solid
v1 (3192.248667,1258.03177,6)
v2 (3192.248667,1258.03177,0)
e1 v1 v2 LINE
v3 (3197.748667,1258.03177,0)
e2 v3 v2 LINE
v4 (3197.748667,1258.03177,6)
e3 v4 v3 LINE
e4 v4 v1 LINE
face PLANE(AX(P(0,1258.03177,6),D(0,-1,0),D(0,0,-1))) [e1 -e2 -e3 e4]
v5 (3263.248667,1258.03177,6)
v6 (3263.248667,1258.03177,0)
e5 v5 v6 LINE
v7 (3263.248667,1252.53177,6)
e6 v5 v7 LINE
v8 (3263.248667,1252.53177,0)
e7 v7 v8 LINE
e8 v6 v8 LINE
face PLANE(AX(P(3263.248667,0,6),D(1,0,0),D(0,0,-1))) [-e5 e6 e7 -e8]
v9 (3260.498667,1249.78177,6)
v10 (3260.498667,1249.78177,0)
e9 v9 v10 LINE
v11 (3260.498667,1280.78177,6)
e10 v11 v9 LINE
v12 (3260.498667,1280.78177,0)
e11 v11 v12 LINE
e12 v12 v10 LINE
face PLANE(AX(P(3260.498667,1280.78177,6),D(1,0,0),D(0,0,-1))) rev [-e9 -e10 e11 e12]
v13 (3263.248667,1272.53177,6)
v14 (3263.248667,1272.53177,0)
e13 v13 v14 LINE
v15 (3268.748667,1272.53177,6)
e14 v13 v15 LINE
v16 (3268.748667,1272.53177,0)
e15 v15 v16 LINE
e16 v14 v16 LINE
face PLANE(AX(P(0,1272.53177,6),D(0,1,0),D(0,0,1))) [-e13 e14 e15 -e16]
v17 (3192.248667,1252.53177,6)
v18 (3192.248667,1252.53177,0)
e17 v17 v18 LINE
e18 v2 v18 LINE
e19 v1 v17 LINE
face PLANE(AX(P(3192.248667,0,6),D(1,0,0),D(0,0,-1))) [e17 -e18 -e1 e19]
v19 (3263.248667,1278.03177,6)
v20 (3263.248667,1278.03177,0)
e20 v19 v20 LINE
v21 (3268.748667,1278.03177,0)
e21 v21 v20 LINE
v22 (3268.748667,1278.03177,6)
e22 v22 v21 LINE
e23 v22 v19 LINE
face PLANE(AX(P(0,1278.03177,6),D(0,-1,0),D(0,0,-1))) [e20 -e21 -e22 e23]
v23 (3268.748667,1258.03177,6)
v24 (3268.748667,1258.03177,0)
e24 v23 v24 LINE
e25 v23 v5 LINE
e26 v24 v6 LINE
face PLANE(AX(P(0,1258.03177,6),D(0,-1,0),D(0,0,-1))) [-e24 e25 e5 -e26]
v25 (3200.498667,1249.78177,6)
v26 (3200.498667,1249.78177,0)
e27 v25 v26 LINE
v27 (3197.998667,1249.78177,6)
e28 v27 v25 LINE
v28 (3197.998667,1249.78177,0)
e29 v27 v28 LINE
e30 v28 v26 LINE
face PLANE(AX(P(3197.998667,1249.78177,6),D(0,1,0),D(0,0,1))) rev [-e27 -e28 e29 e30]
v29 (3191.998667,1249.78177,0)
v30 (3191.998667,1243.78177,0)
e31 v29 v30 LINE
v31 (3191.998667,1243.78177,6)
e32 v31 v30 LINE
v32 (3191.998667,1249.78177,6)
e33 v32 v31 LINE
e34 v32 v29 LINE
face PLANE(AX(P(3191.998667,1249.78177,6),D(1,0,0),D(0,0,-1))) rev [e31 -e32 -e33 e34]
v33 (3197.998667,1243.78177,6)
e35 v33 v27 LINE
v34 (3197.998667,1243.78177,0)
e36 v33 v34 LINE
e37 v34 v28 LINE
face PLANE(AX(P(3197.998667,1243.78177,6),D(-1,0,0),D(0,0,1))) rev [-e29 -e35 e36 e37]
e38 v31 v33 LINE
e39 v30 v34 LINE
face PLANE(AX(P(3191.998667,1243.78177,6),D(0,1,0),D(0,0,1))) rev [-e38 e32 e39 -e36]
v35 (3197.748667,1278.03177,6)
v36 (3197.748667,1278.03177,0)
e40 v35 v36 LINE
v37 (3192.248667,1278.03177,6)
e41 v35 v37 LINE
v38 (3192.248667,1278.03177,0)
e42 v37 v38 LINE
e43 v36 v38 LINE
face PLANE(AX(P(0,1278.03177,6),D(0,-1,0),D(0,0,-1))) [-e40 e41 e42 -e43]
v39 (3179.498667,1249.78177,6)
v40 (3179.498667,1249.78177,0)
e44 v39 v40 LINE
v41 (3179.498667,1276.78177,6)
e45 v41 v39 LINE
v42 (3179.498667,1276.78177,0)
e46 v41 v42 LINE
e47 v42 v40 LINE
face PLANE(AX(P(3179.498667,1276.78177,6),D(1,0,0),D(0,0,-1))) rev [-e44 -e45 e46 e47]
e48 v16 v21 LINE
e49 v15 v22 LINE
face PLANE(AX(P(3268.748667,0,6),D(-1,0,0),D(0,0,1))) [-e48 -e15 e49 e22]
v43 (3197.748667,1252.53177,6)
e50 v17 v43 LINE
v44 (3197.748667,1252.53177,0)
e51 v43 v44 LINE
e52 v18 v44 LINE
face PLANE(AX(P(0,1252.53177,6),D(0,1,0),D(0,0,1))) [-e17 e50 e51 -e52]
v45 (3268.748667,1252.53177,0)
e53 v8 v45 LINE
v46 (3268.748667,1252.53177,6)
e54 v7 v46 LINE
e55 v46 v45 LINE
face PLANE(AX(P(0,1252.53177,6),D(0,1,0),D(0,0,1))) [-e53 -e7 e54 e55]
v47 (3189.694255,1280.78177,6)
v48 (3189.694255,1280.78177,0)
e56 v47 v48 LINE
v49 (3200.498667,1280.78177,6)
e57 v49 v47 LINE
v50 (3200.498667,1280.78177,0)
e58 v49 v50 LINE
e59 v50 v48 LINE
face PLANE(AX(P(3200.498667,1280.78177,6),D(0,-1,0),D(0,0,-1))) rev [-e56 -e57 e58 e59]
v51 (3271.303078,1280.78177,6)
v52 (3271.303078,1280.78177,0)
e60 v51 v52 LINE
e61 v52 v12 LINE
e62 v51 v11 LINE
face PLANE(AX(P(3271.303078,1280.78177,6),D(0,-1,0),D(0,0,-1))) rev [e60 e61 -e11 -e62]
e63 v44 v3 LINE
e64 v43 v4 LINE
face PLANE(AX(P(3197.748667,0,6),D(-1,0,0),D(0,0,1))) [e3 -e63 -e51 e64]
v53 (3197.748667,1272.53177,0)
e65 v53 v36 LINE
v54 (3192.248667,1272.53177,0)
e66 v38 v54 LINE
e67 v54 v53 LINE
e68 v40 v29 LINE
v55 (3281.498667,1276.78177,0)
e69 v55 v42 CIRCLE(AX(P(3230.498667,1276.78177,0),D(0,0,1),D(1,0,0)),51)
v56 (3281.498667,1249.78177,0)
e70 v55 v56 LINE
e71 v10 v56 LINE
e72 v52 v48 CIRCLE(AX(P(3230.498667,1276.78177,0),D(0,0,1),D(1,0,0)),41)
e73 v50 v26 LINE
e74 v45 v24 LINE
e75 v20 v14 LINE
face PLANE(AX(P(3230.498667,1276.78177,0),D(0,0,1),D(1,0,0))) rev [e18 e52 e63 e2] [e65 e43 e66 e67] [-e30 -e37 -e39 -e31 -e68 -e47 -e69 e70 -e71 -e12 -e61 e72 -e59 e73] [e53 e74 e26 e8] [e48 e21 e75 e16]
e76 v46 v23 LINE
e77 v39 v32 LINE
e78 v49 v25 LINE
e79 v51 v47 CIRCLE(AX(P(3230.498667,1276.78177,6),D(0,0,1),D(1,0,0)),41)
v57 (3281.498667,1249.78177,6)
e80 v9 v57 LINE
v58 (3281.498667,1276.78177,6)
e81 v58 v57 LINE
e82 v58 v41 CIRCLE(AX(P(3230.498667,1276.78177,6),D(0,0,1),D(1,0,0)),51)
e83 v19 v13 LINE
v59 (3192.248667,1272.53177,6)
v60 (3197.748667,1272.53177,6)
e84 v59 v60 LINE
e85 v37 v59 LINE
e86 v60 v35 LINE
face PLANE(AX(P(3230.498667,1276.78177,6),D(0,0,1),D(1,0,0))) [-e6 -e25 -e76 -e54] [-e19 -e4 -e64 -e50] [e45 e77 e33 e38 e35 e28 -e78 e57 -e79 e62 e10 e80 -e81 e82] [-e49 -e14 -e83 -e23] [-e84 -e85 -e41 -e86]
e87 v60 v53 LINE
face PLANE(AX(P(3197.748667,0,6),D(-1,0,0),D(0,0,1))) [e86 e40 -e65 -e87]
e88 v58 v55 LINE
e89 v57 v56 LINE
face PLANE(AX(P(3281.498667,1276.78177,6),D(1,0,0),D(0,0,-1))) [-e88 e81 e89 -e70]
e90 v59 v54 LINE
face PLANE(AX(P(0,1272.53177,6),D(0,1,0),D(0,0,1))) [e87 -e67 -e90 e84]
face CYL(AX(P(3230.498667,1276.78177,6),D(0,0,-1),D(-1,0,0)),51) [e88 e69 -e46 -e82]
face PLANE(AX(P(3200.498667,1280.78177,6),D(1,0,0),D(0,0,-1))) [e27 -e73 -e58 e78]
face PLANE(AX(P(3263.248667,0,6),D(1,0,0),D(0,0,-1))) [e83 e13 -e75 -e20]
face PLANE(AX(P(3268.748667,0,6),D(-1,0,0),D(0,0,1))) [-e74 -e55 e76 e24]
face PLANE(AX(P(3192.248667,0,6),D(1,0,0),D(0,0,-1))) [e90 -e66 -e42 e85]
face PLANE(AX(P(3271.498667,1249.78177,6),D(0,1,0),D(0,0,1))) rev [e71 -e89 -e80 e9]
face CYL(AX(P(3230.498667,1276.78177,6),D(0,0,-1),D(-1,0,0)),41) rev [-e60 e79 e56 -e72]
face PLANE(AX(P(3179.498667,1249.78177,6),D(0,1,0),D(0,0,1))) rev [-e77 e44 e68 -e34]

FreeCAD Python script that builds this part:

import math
import FreeCAD as App
import Part
import Sketcher

V = App.Vector
Q = App.Units.Quantity

doc = App.newDocument("Part")
body = doc.addObject("PartDesign::Body", "Body")

# Sketch on XY plane
sketch1 = body.newObject("Sketcher::SketchObject", "Sketch")
sketch1.AttachmentSupport = (doc.getObject("XY_Plane"), [""])
sketch1.MapMode = "FlatFace"
sketch1.addGeometry(Part.LineSegment(V(3179.5, 1276.8, 0), V(3179.5, 1249.8, 0)), False)
sketch1.addGeometry(Part.LineSegment(V(3179.5, 1249.8, 0), V(3192, 1249.8, 0)), False)
sketch1.addGeometry(Part.LineSegment(V(3192, 1249.8, 0), V(3192, 1243.8, 0)), False)
sketch1.addGeometry(Part.LineSegment(V(3192, 1243.8, 0), V(3198, 1243.8, 0)), False)
sketch1.addGeometry(Part.LineSegment(V(3198, 1243.8, 0), V(3198, 1249.8, 0)), False)
sketch1.addGeometry(Part.LineSegment(V(3198, 1249.8, 0), V(3200.5, 1249.8, 0)), False)
sketch1.addGeometry(Part.LineSegment(V(3200.5, 1249.8, 0), V(3200.5, 1280.8, 0)), False)
sketch1.addGeometry(Part.LineSegment(V(3200.5, 1280.8, 0), V(3189.7, 1280.8, 0)), False)
sketch1.addGeometry(Part.ArcOfCircle(Part.Circle(V(3230.5, 1276.8, 0), V(0, 0, 1), 41), math.radians(6), math.radians(174)), False)
sketch1.addGeometry(Part.LineSegment(V(3271.3, 1280.8, 0), V(3260.5, 1280.8, 0)), False)
sketch1.addGeometry(Part.LineSegment(V(3260.5, 1280.8, 0), V(3260.5, 1249.8, 0)), False)
sketch1.addGeometry(Part.LineSegment(V(3260.5, 1249.8, 0), V(3281.5, 1249.8, 0)), False)
sketch1.addGeometry(Part.LineSegment(V(3281.5, 1249.8, 0), V(3281.5, 1276.8, 0)), False)
sketch1.addGeometry(Part.ArcOfCircle(Part.Circle(V(3230.5, 1276.8, 0), V(0, 0, 1), 51), math.radians(0), math.radians(180)), False)
sketch1.addGeometry(Part.LineSegment(V(3197.7, 1252.5, 0), V(3192.2, 1252.5, 0)), False)
sketch1.addGeometry(Part.LineSegment(V(3192.2, 1252.5, 0), V(3192.2, 1258, 0)), False)
sketch1.addGeometry(Part.LineSegment(V(3192.2, 1258, 0), V(3197.7, 1258, 0)), False)
sketch1.addGeometry(Part.LineSegment(V(3197.7, 1258, 0), V(3197.7, 1252.5, 0)), False)
sketch1.addGeometry(Part.LineSegment(V(3268.7, 1252.5, 0), V(3263.2, 1252.5, 0)), False)
sketch1.addGeometry(Part.LineSegment(V(3263.2, 1252.5, 0), V(3263.2, 1258, 0)), False)
sketch1.addGeometry(Part.LineSegment(V(3263.2, 1258, 0), V(3268.7, 1258, 0)), False)
sketch1.addGeometry(Part.LineSegment(V(3268.7, 1258, 0), V(3268.7, 1252.5, 0)), False)
sketch1.addGeometry(Part.LineSegment(V(3197.7, 1272.5, 0), V(3192.2, 1272.5, 0)), False)
sketch1.addGeometry(Part.LineSegment(V(3192.2, 1272.5, 0), V(3192.2, 1278, 0)), False)
sketch1.addGeometry(Part.LineSegment(V(3192.2, 1278, 0), V(3197.7, 1278, 0)), False)
sketch1.addGeometry(Part.LineSegment(V(3197.7, 1278, 0), V(3197.7, 1272.5, 0)), False)
sketch1.addGeometry(Part.LineSegment(V(3268.7, 1272.5, 0), V(3263.2, 1272.5, 0)), False)
sketch1.addGeometry(Part.LineSegment(V(3263.2, 1272.5, 0), V(3263.2, 1278, 0)), False)
sketch1.addGeometry(Part.LineSegment(V(3263.2, 1278, 0), V(3268.7, 1278, 0)), False)
sketch1.addGeometry(Part.LineSegment(V(3268.7, 1278, 0), V(3268.7, 1272.5, 0)), False)
sketch1.addConstraint(Sketcher.Constraint("Coincident", 0, 2, 1, 1))
sketch1.addConstraint(Sketcher.Constraint("Coincident", 1, 2, 2, 1))
sketch1.addConstraint(Sketcher.Constraint("Coincident", 2, 2, 3, 1))
sketch1.addConstraint(Sketcher.Constraint("Coincident", 3, 2, 4, 1))
sketch1.addConstraint(Sketcher.Constraint("Coincident", 4, 2, 5, 1))
sketch1.addConstraint(Sketcher.Constraint("Coincident", 5, 2, 6, 1))
sketch1.addConstraint(Sketcher.Constraint("Coincident", 6, 2, 7, 1))
sketch1.addConstraint(Sketcher.Constraint("Coincident", 7, 2, 8, 2))
sketch1.addConstraint(Sketcher.Constraint("Coincident", 8, 1, 9, 1))
sketch1.addConstraint(Sketcher.Constraint("Coincident", 9, 2, 10, 1))
sketch1.addConstraint(Sketcher.Constraint("Coincident", 10, 2, 11, 1))
sketch1.addConstraint(Sketcher.Constraint("Coincident", 11, 2, 12, 1))
sketch1.addConstraint(Sketcher.Constraint("Tangent", 12, 2, 13, 1))
sketch1.addConstraint(Sketcher.Constraint("Tangent", 13, 2, 0, 1))
sketch1.addConstraint(Sketcher.Constraint("Coincident", 14, 2, 15, 1))
sketch1.addConstraint(Sketcher.Constraint("Coincident", 15, 2, 16, 1))
sketch1.addConstraint(Sketcher.Constraint("Coincident", 16, 2, 17, 1))
sketch1.addConstraint(Sketcher.Constraint("Coincident", 17, 2, 14, 1))
sketch1.addConstraint(Sketcher.Constraint("Coincident", 18, 2, 19, 1))
sketch1.addConstraint(Sketcher.Constraint("Coincident", 19, 2, 20, 1))
sketch1.addConstraint(Sketcher.Constraint("Coincident", 20, 2, 21, 1))
sketch1.addConstraint(Sketcher.Constraint("Coincident", 21, 2, 18, 1))
sketch1.addConstraint(Sketcher.Constraint("Coincident", 22, 2, 23, 1))
sketch1.addConstraint(Sketcher.Constraint("Coincident", 23, 2, 24, 1))
sketch1.addConstraint(Sketcher.Constraint("Coincident", 24, 2, 25, 1))
sketch1.addConstraint(Sketcher.Constraint("Coincident", 25, 2, 22, 1))
sketch1.addConstraint(Sketcher.Constraint("Coincident", 26, 2, 27, 1))
sketch1.addConstraint(Sketcher.Constraint("Coincident", 27, 2, 28, 1))
sketch1.addConstraint(Sketcher.Constraint("Coincident", 28, 2, 29, 1))
sketch1.addConstraint(Sketcher.Constraint("Coincident", 29, 2, 26, 1))
sketch1.addConstraint(Sketcher.Constraint("Vertical", 0))
sketch1.addConstraint(Sketcher.Constraint("Horizontal", 1))
sketch1.addConstraint(Sketcher.Constraint("Vertical", 2))
sketch1.addConstraint(Sketcher.Constraint("Horizontal", 3))
sketch1.addConstraint(Sketcher.Constraint("Vertical", 4))
sketch1.addConstraint(Sketcher.Constraint("Horizontal", 5))
sketch1.addConstraint(Sketcher.Constraint("Vertical", 6))
sketch1.addConstraint(Sketcher.Constraint("Horizontal", 7))
sketch1.addConstraint(Sketcher.Constraint("Horizontal", 9))
sketch1.addConstraint(Sketcher.Constraint("Vertical", 10))
sketch1.addConstraint(Sketcher.Constraint("Horizontal", 11))
sketch1.addConstraint(Sketcher.Constraint("Vertical", 12))
sketch1.addConstraint(Sketcher.Constraint("Horizontal", 14))
sketch1.addConstraint(Sketcher.Constraint("Vertical", 15))
sketch1.addConstraint(Sketcher.Constraint("Horizontal", 16))
sketch1.addConstraint(Sketcher.Constraint("Vertical", 17))
sketch1.addConstraint(Sketcher.Constraint("Horizontal", 18))
sketch1.addConstraint(Sketcher.Constraint("Vertical", 19))
sketch1.addConstraint(Sketcher.Constraint("Horizontal", 20))
sketch1.addConstraint(Sketcher.Constraint("Vertical", 21))
sketch1.addConstraint(Sketcher.Constraint("Horizontal", 22))
sketch1.addConstraint(Sketcher.Constraint("Vertical", 23))
sketch1.addConstraint(Sketcher.Constraint("Horizontal", 24))
sketch1.addConstraint(Sketcher.Constraint("Vertical", 25))
sketch1.addConstraint(Sketcher.Constraint("Horizontal", 26))
sketch1.addConstraint(Sketcher.Constraint("Vertical", 27))
sketch1.addConstraint(Sketcher.Constraint("Horizontal", 28))
sketch1.addConstraint(Sketcher.Constraint("Vertical", 29))
sketch1.addConstraint(Sketcher.Constraint("Coincident", 13, 3, 8, 3))
sketch1.addConstraint(Sketcher.Constraint("Horizontal", 1, 2, 4, 2))
sketch1.addConstraint(Sketcher.Constraint("Horizontal", 7, 2, 8, 1))
sketch1.addConstraint(Sketcher.Constraint("Horizontal", 5, 2, 10, 2))
sketch1.addConstraint(Sketcher.Constraint("Horizontal", 17, 2, 18, 2))
sketch1.addConstraint(Sketcher.Constraint("Horizontal", 16, 2, 19, 2))
sketch1.addConstraint(Sketcher.Constraint("Horizontal", 25, 2, 26, 2))
sketch1.addConstraint(Sketcher.Constraint("Horizontal", 24, 2, 27, 2))
sketch1.addConstraint(Sketcher.Constraint("Vertical", 15, 2, 22, 2))
sketch1.addConstraint(Sketcher.Constraint("Vertical", 17, 2, 24, 2))
sketch1.addConstraint(Sketcher.Constraint("Vertical", 19, 2, 26, 2))
sketch1.addConstraint(Sketcher.Constraint("Vertical", 21, 2, 28, 2))
sketch1.addConstraint(Sketcher.Constraint("Equal", 7, 9))
sketch1.addConstraint(Sketcher.Constraint("Equal", 16, 18))
sketch1.addConstraint(Sketcher.Constraint("Equal", 3, 2))
sketch1.addConstraint(Sketcher.Constraint("Equal", 28, 15))
sketch1.addConstraint(Sketcher.Constraint("Equal", 21, 23))
sketch1.addConstraint(Sketcher.Constraint("Radius", 8, Q("41 mm")))
sketch1.addConstraint(Sketcher.Constraint("Radius", 13, Q("51 mm")))
sketch1.addConstraint(Sketcher.Constraint("DistanceX", 3, 1, 3, 2, Q("6 mm")))
sketch1.addConstraint(Sketcher.Constraint("DistanceX", 11, 1, 11, 2, Q("21 mm")))
sketch1.addConstraint(Sketcher.Constraint("DistanceY", 0, 2, 0, 1, Q("27 mm")))
sketch1.addConstraint(Sketcher.Constraint("DistanceY", 6, 1, 6, 2, Q("31 mm")))
sketch1.addConstraint(Sketcher.Constraint("DistanceX", 1, 1, 1, 2, Q("12.5 mm")))
sketch1.addConstraint(Sketcher.Constraint("DistanceX", 14, 2, 14, 1, Q("5.5 mm")))
sketch1.addConstraint(Sketcher.Constraint("DistanceY", 15, 2, 23, 2, Q("20 mm")))
sketch1.addConstraint(Sketcher.Constraint("DistanceX", 1, 2, 14, 2, Q("0.25 mm")))
sketch1.addConstraint(Sketcher.Constraint("DistanceY", 1, 2, 14, 2, Q("2.75 mm")))
sketch1.addConstraint(Sketcher.Constraint("DistanceX", 10, 2, 18, 2, Q("2.75 mm")))
sketch1.addConstraint(Sketcher.Constraint("DistanceY", -1, 1, 8, 3, Q("1276.78177 mm")))
sketch1.addConstraint(Sketcher.Constraint("DistanceX", -1, 1, 8, 1, Q("3271.303078 mm")))
pad1 = body.newObject("PartDesign::Pad", "Pad")
pad1.Profile = sketch1
pad1.Length = 6

doc.recompute()
